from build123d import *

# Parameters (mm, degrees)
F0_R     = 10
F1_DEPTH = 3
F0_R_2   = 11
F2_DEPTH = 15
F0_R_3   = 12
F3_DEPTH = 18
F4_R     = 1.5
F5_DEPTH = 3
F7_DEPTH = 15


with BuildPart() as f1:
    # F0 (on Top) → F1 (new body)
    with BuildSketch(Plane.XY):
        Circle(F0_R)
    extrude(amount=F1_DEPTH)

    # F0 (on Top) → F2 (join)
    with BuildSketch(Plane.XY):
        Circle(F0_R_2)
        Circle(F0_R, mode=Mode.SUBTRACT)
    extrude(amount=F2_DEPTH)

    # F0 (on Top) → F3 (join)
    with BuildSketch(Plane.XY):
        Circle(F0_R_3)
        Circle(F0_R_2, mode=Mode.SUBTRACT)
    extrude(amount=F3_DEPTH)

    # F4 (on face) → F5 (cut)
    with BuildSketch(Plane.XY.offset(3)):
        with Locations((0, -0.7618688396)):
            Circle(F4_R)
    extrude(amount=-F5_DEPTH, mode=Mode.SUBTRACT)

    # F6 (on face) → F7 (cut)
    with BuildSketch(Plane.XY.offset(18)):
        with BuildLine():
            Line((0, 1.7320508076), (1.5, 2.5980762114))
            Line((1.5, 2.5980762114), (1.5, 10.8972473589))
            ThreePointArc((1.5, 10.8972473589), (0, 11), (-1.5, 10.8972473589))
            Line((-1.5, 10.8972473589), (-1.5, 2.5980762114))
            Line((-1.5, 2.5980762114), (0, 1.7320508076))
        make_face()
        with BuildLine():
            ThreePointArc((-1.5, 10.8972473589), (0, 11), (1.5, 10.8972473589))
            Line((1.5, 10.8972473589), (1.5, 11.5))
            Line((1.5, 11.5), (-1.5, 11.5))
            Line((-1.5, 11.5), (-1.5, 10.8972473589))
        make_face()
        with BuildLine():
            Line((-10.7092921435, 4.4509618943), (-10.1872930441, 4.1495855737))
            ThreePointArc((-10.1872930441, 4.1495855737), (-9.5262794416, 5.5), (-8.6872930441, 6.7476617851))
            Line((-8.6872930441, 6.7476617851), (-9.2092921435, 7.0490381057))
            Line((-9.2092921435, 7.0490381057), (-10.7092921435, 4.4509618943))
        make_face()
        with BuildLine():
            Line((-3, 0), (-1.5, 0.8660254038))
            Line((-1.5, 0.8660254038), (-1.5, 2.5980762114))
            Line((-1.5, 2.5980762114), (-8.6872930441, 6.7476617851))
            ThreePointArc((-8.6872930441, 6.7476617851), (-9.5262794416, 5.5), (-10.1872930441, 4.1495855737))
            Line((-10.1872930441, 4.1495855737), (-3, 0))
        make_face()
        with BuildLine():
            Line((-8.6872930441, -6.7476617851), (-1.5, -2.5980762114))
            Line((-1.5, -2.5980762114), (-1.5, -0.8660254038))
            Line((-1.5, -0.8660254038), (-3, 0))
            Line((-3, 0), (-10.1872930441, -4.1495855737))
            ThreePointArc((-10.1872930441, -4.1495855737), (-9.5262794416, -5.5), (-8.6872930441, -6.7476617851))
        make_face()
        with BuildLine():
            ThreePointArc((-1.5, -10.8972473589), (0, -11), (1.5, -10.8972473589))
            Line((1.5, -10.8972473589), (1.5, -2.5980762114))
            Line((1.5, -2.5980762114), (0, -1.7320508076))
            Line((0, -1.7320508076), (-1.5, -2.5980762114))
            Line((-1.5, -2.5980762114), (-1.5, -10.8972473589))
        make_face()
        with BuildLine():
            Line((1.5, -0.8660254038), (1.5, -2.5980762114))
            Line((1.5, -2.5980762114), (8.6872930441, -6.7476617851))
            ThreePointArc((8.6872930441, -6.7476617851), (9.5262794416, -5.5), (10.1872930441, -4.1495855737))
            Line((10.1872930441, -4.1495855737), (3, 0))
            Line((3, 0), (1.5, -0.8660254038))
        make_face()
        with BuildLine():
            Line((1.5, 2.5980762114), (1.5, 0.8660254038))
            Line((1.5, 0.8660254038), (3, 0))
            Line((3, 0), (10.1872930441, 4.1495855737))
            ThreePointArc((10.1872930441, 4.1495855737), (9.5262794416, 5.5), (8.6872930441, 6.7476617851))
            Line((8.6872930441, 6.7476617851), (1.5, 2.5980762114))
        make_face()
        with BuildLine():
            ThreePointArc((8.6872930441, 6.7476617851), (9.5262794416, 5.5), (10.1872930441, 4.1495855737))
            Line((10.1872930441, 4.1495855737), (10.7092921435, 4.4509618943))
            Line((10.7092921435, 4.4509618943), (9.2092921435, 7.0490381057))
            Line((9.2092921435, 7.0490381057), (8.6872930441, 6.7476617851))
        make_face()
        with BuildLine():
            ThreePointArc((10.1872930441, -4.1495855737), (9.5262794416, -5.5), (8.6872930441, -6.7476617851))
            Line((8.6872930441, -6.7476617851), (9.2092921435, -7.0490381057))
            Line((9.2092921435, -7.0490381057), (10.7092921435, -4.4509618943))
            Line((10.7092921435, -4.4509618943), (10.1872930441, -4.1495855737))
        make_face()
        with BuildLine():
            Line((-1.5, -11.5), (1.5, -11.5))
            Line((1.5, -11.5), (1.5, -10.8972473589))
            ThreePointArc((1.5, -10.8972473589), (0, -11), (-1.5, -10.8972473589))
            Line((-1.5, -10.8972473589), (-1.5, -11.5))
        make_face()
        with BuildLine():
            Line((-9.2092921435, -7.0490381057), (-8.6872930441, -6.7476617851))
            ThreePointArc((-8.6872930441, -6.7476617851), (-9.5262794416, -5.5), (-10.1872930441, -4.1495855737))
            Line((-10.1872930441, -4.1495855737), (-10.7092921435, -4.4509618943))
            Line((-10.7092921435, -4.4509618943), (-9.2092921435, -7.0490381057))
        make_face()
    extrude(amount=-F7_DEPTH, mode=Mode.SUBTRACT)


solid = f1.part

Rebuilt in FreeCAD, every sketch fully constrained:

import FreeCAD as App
import Part
import Sketcher

V = App.Vector
Q = App.Units.Quantity

doc = App.newDocument("Part")
body = doc.addObject("PartDesign::Body", "Body")

# Sketch on XY plane
sketch1 = body.newObject("Sketcher::SketchObject", "Sketch")
sketch1.AttachmentSupport = (doc.getObject("XY_Plane"), [""])
sketch1.MapMode = "FlatFace"
sketch1.addGeometry(Part.Circle(V(0, 0, 0), V(0, 0, 1), 10), False)
sketch1.addConstraint([
    Sketcher.Constraint("Coincident", 0, 3, -1, 1),
    Sketcher.Constraint("Diameter", 0, Q("20 mm")),
])
pad1 = body.newObject("PartDesign::Pad", "Pad")
pad1.Profile = sketch1
pad1.Length = 3

# Sketch on XY plane
sketch2 = body.newObject("Sketcher::SketchObject", "Sketch001")
sketch2.AttachmentSupport = (doc.getObject("XY_Plane"), [""])
sketch2.MapMode = "FlatFace"
sketch2.addGeometry([
    Part.Circle(V(0, 0, 0), V(0, 0, 1), 11),
    Part.Circle(V(0, 0, 0), V(0, 0, 1), 10),
], False)
sketch2.addConstraint([
    Sketcher.Constraint("Coincident", 0, 3, -1, 1),
    Sketcher.Constraint("Coincident", 1, 3, -1, 1),
    Sketcher.Constraint("Diameter", 0, Q("22 mm")),
    Sketcher.Constraint("Diameter", 1, Q("20 mm")),
])
pad2 = body.newObject("PartDesign::Pad", "Pad001")
pad2.Profile = sketch2
pad2.Length = 15

# Sketch on XY plane
sketch3 = body.newObject("Sketcher::SketchObject", "Sketch002")
sketch3.AttachmentSupport = (doc.getObject("XY_Plane"), [""])
sketch3.MapMode = "FlatFace"
sketch3.addGeometry([
    Part.Circle(V(0, 0, 0), V(0, 0, 1), 12),
    Part.Circle(V(0, 0, 0), V(0, 0, 1), 11),
], False)
sketch3.addConstraint([
    Sketcher.Constraint("Coincident", 0, 3, -1, 1),
    Sketcher.Constraint("Coincident", 1, 3, -1, 1),
    Sketcher.Constraint("Diameter", 0, Q("24 mm")),
    Sketcher.Constraint("Diameter", 1, Q("22 mm")),
])
pad3 = body.newObject("PartDesign::Pad", "Pad002")
pad3.Profile = sketch3
pad3.Length = 18

# Sketch on XY plane
sketch4 = body.newObject("Sketcher::SketchObject", "Sketch003")
sketch4.AttachmentSupport = (doc.getObject("XY_Plane"), [""])
sketch4.MapMode = "FlatFace"
sketch4.AttachmentOffset = App.Placement(V(0, 0, 3), App.Rotation())
sketch4.addGeometry(Part.Circle(V(0, -0.8, 0), V(0, 0, 1), 1.5), False)
sketch4.addConstraint([
    Sketcher.Constraint("PointOnObject", 0, 3, -2),
    Sketcher.Constraint("Diameter", 0, Q("3 mm")),
    Sketcher.Constraint("DistanceY", 0, 3, -1, 1, Q("0.761869 mm")),
])
pocket1 = body.newObject("PartDesign::Pocket", "Pocket")
pocket1.Profile = sketch4
pocket1.Length = 3

# Sketch on XY plane
sketch5 = body.newObject("Sketcher::SketchObject", "Sketch004")
sketch5.AttachmentSupport = (doc.getObject("XY_Plane"), [""])
sketch5.MapMode = "FlatFace"
sketch5.AttachmentOffset = App.Placement(V(0, 0, 18), App.Rotation())
sketch5.addGeometry([
    Part.LineSegment(V(0, 1.7, 0), V(1.5, 2.6, 0)),  # 0
    Part.LineSegment(V(1.5, 2.6, 0), V(1.5, 11.5, 0)),  # 1
    Part.LineSegment(V(1.5, 11.5, 0), V(-1.5, 11.5, 0)),  # 2
    Part.LineSegment(V(-1.5, 11.5, 0), V(-1.5, 2.6, 0)),  # 3
    Part.LineSegment(V(-1.5, 2.6, 0), V(0, 1.7, 0)),  # 4
    Part.LineSegment(V(-10.7, 4.5, 0), V(-10.2, 4.1, 0)),  # 5
    Part.LineSegment(V(-10.2, 4.1, 0), V(-3, 0, 0)),  # 6
    Part.LineSegment(V(-3, 0, 0), V(-1.5, 0.9, 0)),  # 7
    Part.LineSegment(V(-1.5, 0.9, 0), V(-1.5, 2.6, 0)),  # 8
    Part.LineSegment(V(-1.5, 2.6, 0), V(-8.7, 6.7, 0)),  # 9
    Part.LineSegment(V(-8.7, 6.7, 0), V(-9.2, 7, 0)),  # 10
    Part.LineSegment(V(-9.2, 7, 0), V(-10.7, 4.5, 0)),  # 11
    Part.LineSegment(V(-8.7, -6.7, 0), V(-1.5, -2.6, 0)),  # 12
    Part.LineSegment(V(-1.5, -2.6, 0), V(-1.5, -0.9, 0)),  # 13
    Part.LineSegment(V(-1.5, -0.9, 0), V(-3, 0, 0)),  # 14
    Part.LineSegment(V(-3, 0, 0), V(-10.2, -4.1, 0)),  # 15
    Part.LineSegment(V(-10.2, -4.1, 0), V(-10.7, -4.5, 0)),  # 16
    Part.LineSegment(V(-10.7, -4.5, 0), V(-9.2, -7, 0)),  # 17
    Part.LineSegment(V(-9.2, -7, 0), V(-8.7, -6.7, 0)),  # 18
    Part.LineSegment(V(1.5, -2.6, 0), V(0, -1.7, 0)),  # 19
    Part.LineSegment(V(0, -1.7, 0), V(-1.5, -2.6, 0)),  # 20
    Part.LineSegment(V(-1.5, -2.6, 0), V(-1.5, -11.5, 0)),  # 21
    Part.LineSegment(V(-1.5, -11.5, 0), V(1.5, -11.5, 0)),  # 22
    Part.LineSegment(V(1.5, -11.5, 0), V(1.5, -2.6, 0)),  # 23
    Part.LineSegment(V(1.5, -0.9, 0), V(1.5, -2.6, 0)),  # 24
    Part.LineSegment(V(1.5, -2.6, 0), V(8.7, -6.7, 0)),  # 25
    Part.LineSegment(V(8.7, -6.7, 0), V(9.2, -7, 0)),  # 26
    Part.LineSegment(V(9.2, -7, 0), V(10.7, -4.5, 0)),  # 27
    Part.LineSegment(V(10.7, -4.5, 0), V(10.2, -4.1, 0)),  # 28
    Part.LineSegment(V(10.2, -4.1, 0), V(3, 0, 0)),  # 29
    Part.LineSegment(V(3, 0, 0), V(1.5, -0.9, 0)),  # 30
    Part.LineSegment(V(1.5, 2.6, 0), V(1.5, 0.9, 0)),  # 31
    Part.LineSegment(V(1.5, 0.9, 0), V(3, 0, 0)),  # 32
    Part.LineSegment(V(3, 0, 0), V(10.2, 4.1, 0)),  # 33
    Part.LineSegment(V(10.2, 4.1, 0), V(10.7, 4.5, 0)),  # 34
    Part.LineSegment(V(10.7, 4.5, 0), V(9.2, 7, 0)),  # 35
    Part.LineSegment(V(9.2, 7, 0), V(8.7, 6.7, 0)),  # 36
    Part.LineSegment(V(8.7, 6.7, 0), V(1.5, 2.6, 0)),  # 37
], False)
sketch5.addConstraint([
    Sketcher.Constraint("Coincident", 0, 2, 1, 1),
    Sketcher.Constraint("Coincident", 1, 2, 2, 1),
    Sketcher.Constraint("Coincident", 2, 2, 3, 1),
    Sketcher.Constraint("Coincident", 3, 2, 4, 1),
    Sketcher.Constraint("Coincident", 4, 2, 0, 1),
    Sketcher.Constraint("Coincident", 5, 2, 6, 1),
    Sketcher.Constraint("Coincident", 6, 2, 7, 1),
    Sketcher.Constraint("Coincident", 7, 2, 8, 1),
    Sketcher.Constraint("Coincident", 8, 2, 9, 1),
    Sketcher.Constraint("Coincident", 9, 2, 10, 1),
    Sketcher.Constraint("Coincident", 10, 2, 11, 1),
    Sketcher.Constraint("Coincident", 11, 2, 5, 1),
    Sketcher.Constraint("Coincident", 12, 2, 13, 1),
    Sketcher.Constraint("Coincident", 13, 2, 14, 1),
    Sketcher.Constraint("Coincident", 14, 2, 15, 1),
    Sketcher.Constraint("Coincident", 15, 2, 16, 1),
    Sketcher.Constraint("Coincident", 16, 2, 17, 1),
    Sketcher.Constraint("Coincident", 17, 2, 18, 1),
    Sketcher.Constraint("Coincident", 18, 2, 12, 1),
    Sketcher.Constraint("Coincident", 19, 2, 20, 1),
    Sketcher.Constraint("Coincident", 20, 2, 21, 1),
    Sketcher.Constraint("Coincident", 21, 2, 22, 1),
    Sketcher.Constraint("Coincident", 22, 2, 23, 1),
    Sketcher.Constraint("Coincident", 23, 2, 19, 1),
    Sketcher.Constraint("Coincident", 24, 2, 25, 1),
    Sketcher.Constraint("Coincident", 25, 2, 26, 1),
    Sketcher.Constraint("Coincident", 26, 2, 27, 1),
    Sketcher.Constraint("Coincident", 27, 2, 28, 1),
    Sketcher.Constraint("Coincident", 28, 2, 29, 1),
    Sketcher.Constraint("Coincident", 29, 2, 30, 1),
    Sketcher.Constraint("Coincident", 30, 2, 24, 1),
    Sketcher.Constraint("Coincident", 31, 2, 32, 1),
    Sketcher.Constraint("Coincident", 32, 2, 33, 1),
    Sketcher.Constraint("Coincident", 33, 2, 34, 1),
    Sketcher.Constraint("Coincident", 34, 2, 35, 1),
    Sketcher.Constraint("Coincident", 35, 2, 36, 1),
    Sketcher.Constraint("Coincident", 36, 2, 37, 1),
    Sketcher.Constraint("Coincident", 37, 2, 31, 1),
    Sketcher.Constraint("Vertical", 1),
    Sketcher.Constraint("Horizontal", 2),
    Sketcher.Constraint("Vertical", 3),
    Sketcher.Constraint("Vertical", 8),
    Sketcher.Constraint("Vertical", 13),
    Sketcher.Constraint("Vertical", 21),
    Sketcher.Constraint("Horizontal", 22),
    Sketcher.Constraint("Vertical", 23),
    Sketcher.Constraint("Vertical", 24),
    Sketcher.Constraint("Vertical", 31),
    Sketcher.Constraint("Coincident", 8, 2, 3, 2),
    Sketcher.Constraint("Coincident", 14, 2, 6, 2),
    Sketcher.Constraint("Coincident", 20, 2, 12, 2),
    Sketcher.Constraint("Coincident", 24, 2, 23, 2),
    Sketcher.Constraint("Coincident", 32, 2, 29, 2),
    Sketcher.Constraint("Coincident", 37, 2, 0, 2),
    Sketcher.Constraint("Symmetric", 0, 2, 12, 2, -1, 1),
    Sketcher.Constraint("Symmetric", 4, 2, 19, 2, -1, 1),
    Sketcher.Constraint("Symmetric", 2, 2, 22, 2, -1, 1),
    Sketcher.Constraint("Symmetric", 9, 2, 25, 2, -1, 1),
    Sketcher.Constraint("Symmetric", 10, 2, 26, 2, -1, 1),
    Sketcher.Constraint("Symmetric", 11, 2, 27, 2, -1, 1),
    Sketcher.Constraint("Symmetric", 5, 2, 28, 2, -1, 1),
    Sketcher.Constraint("Symmetric", 6, 2, 29, 2, -1, 1),
    Sketcher.Constraint("Symmetric", 15, 2, 33, 2, -1, 1),
    Sketcher.Constraint("Symmetric", 16, 2, 34, 2, -1, 1),
    Sketcher.Constraint("Symmetric", 17, 2, 35, 2, -1, 1),
    Sketcher.Constraint("Symmetric", 18, 2, 36, 2, -1, 1),
    Sketcher.Constraint("Symmetric", 0, 2, 3, 2, -2),
    Sketcher.Constraint("Symmetric", 18, 2, 25, 2, -2),
    Sketcher.Constraint("Symmetric", 17, 2, 26, 2, -2),
    Sketcher.Constraint("Symmetric", 16, 2, 27, 2, -2),
    Sketcher.Constraint("Symmetric", 15, 2, 28, 2, -2),
    Sketcher.Constraint("PointOnObject", 4, 2, -2),
    Sketcher.Constraint("PointOnObject", 6, 2, -1),
    Sketcher.Constraint("Parallel", 4, 5),
    Sketcher.Constraint("Parallel", 5, 6),
    Sketcher.Constraint("Parallel", 0, 7),
    Sketcher.Constraint("Parallel", 6, 9),
    Sketcher.Constraint("Parallel", 9, 10),
    Sketcher.Constraint("Perpendicular", 10, 11),
    Sketcher.Constraint("Perpendicular", 11, 14),
    Sketcher.Constraint("Parallel", 14, 19),
    Sketcher.Constraint("Parallel", 20, 30),
    Sketcher.Constraint("Parallel", 29, 32),
    Sketcher.Constraint("Equal", 4, 7),
    Sketcher.Constraint("Equal", 6, 9),
    Sketcher.Constraint("Equal", 5, 10),
    Sketcher.Constraint("DistanceX", 2, 2, 2, 1, Q("3 mm")),
    Sketcher.Constraint("Angle", 0, Q("30 deg")),
    Sketcher.Constraint("DistanceY", -1, 1, 1, 2, Q("11.5 mm")),
    Sketcher.Constraint("DistanceX", 10, 2, 9, 2, Q("0.521999 mm")),
    Sketcher.Constraint("Distance", 6, Q("8.299171 mm")),
])
pocket2 = body.newObject("PartDesign::Pocket", "Pocket001")
pocket2.Profile = sketch5
pocket2.Length = 15

doc.recompute()
